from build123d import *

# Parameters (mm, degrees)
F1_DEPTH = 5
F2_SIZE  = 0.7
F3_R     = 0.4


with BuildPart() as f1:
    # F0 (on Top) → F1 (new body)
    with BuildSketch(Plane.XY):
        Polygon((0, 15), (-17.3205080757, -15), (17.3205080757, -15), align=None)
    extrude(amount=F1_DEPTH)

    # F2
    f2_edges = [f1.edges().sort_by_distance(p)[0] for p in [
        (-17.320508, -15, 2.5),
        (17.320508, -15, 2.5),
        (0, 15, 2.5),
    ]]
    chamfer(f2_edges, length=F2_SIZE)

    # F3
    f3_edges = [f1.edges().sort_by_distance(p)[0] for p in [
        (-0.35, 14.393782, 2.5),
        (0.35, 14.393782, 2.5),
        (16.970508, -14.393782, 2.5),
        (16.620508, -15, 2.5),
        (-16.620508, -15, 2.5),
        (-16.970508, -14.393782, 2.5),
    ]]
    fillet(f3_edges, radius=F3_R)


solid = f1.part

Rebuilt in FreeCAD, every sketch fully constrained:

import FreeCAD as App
import Part
import Sketcher

V = App.Vector
Q = App.Units.Quantity


def edges_at(feature, points):
    """Names of the edges that pass closest to the given points."""
    edges = feature.Shape.Edges
    near = lambda p: min(range(len(edges)), key=lambda i: edges[i].distToShape(Part.Vertex(*p))[0])
    return sorted({f"Edge{near(p) + 1}" for p in points})

doc = App.newDocument("Part")
body = doc.addObject("PartDesign::Body", "Body")

sketch1 = body.newObject("Sketcher::SketchObject", "Sketch")
sketch1.AttachmentSupport = (doc.getObject("XY_Plane"), [""])
sketch1.MapMode = "FlatFace"
sketch1.addGeometry([
    Part.LineSegment(V(0, 15, 0), V(-17, -15, 0)),
    Part.LineSegment(V(-17, -15, 0), V(17, -15, 0)),
    Part.LineSegment(V(17, -15, 0), V(0, 15, 0)),
], False)
sketch1.addConstraint([
    Sketcher.Constraint("Coincident", 0, 2, 1, 1),
    Sketcher.Constraint("Coincident", 1, 2, 2, 1),
    Sketcher.Constraint("Coincident", 2, 2, 0, 1),
    Sketcher.Constraint("Horizontal", 1),
    Sketcher.Constraint("PointOnObject", 2, 2, -2),
    Sketcher.Constraint("Equal", 0, 2),
    Sketcher.Constraint("Angle", 0, Q("-120 deg")),
    Sketcher.Constraint("DistanceY", 0, 2, -1, 1, Q("15 mm")),
    Sketcher.Constraint("DistanceY", -1, 1, 2, 2, Q("15 mm")),
])
pad1 = body.newObject("PartDesign::Pad", "Pad")
pad1.Profile = sketch1
pad1.Length = 5
doc.recompute()

chamfer = body.newObject("PartDesign::Chamfer", "Chamfer")
chamfer.Base = (pad1, edges_at(pad1, [(-17.321, -15, 2.5), (17.321, -15, 2.5), (0, 15, 2.5)]))
chamfer.Size = 0.7
doc.recompute()

fillet = body.newObject("PartDesign::Fillet", "Fillet")
fillet.Base = (chamfer, edges_at(chamfer, [
    (-0.35, 14.394, 2.5),
    (0.35, 14.394, 2.5),
    (16.971, -14.394, 2.5),
    (16.621, -15, 2.5),
    (-16.621, -15, 2.5),
    (-16.971, -14.394, 2.5),
]))
fillet.Radius = 0.4

doc.recompute()
